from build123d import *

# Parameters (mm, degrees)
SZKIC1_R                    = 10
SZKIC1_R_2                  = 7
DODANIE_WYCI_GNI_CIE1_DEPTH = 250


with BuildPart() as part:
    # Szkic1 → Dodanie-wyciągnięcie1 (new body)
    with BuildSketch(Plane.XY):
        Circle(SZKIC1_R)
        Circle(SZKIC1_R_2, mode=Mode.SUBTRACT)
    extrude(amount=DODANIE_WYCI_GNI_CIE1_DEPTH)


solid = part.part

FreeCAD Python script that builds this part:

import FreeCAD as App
import Part
import Sketcher
from FreeCAD import Vector

doc = App.newDocument("Part")
body = doc.addObject("PartDesign::Body", "Body")

# Sketch on XY plane
sketch1 = body.newObject("Sketcher::SketchObject", "Sketch")
sketch1.AttachmentSupport = (doc.getObject("XY_Plane"), [""])
sketch1.MapMode = "FlatFace"
sketch1.addGeometry(Part.Circle(Vector(0, 0, 0), Vector(0, 0, 1), 10), False)
sketch1.addGeometry(Part.Circle(Vector(0, 0, 0), Vector(0, 0, 1), 7), False)
sketch1.addConstraint(Sketcher.Constraint("Coincident", 0, 3, -1, 1))
sketch1.addConstraint(Sketcher.Constraint("Coincident", 1, 3, -1, 1))
sketch1.addConstraint(Sketcher.Constraint("Diameter", 0, 20.0))
sketch1.addConstraint(Sketcher.Constraint("Diameter", 1, 14.0))
pad1 = body.newObject("PartDesign::Pad", "Pad")
pad1.Profile = sketch1
pad1.Length = 250

doc.recompute()
